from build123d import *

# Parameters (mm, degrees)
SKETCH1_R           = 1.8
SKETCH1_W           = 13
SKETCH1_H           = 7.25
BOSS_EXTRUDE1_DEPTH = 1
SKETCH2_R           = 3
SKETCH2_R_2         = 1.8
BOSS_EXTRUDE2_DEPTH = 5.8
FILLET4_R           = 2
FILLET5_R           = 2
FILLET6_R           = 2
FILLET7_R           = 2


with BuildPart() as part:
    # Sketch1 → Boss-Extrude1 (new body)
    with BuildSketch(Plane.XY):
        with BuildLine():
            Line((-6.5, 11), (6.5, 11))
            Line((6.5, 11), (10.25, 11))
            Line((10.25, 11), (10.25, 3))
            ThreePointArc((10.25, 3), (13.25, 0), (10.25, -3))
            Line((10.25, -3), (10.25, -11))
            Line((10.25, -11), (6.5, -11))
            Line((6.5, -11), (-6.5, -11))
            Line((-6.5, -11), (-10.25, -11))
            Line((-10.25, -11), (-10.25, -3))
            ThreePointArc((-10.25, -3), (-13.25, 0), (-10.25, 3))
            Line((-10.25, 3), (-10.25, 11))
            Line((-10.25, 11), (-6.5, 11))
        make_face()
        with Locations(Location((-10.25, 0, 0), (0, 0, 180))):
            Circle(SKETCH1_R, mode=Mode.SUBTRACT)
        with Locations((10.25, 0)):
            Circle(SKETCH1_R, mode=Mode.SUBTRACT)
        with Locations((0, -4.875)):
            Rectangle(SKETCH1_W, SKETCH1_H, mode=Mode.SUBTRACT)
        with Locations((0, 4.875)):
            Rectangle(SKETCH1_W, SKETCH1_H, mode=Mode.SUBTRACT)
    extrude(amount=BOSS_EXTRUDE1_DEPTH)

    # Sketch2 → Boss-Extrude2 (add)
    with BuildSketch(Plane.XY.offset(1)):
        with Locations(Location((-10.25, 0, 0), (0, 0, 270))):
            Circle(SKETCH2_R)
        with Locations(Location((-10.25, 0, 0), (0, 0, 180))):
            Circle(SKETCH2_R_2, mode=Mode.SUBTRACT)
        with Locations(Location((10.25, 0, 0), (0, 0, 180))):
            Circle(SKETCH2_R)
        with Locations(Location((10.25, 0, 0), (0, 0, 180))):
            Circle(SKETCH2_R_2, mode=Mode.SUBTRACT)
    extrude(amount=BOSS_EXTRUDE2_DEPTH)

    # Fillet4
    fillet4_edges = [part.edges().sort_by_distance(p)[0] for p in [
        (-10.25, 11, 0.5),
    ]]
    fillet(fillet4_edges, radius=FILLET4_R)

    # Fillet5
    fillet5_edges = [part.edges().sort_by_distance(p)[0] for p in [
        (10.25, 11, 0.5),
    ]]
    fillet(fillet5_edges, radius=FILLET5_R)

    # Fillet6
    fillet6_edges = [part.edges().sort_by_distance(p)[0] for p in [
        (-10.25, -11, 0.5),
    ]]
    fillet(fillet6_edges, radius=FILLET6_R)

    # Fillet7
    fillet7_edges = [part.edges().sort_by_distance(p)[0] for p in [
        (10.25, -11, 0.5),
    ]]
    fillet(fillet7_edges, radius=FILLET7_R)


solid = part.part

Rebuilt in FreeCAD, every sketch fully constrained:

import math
import FreeCAD as App
import Part
import Sketcher
from FreeCAD import Vector


def edges_at(feature, points):
    """Names of the edges that pass closest to the given points."""
    edges = feature.Shape.Edges
    near = lambda p: min(range(len(edges)), key=lambda i: edges[i].distToShape(Part.Vertex(*p))[0])
    return sorted({f"Edge{near(p) + 1}" for p in points})


def add_polygon(sketch, points):
    """Adds a closed chain of lines whose ends are joined by coincident constraints."""
    first, n = sketch.GeometryCount, len(points)
    for a, b in zip(points, points[1:] + points[:1]):
        sketch.addGeometry(Part.LineSegment(App.Vector(*a, 0), App.Vector(*b, 0)), False)
    for i in range(n):
        sketch.addConstraint(Sketcher.Constraint("Coincident", first + i, 2, first + (i + 1) % n, 1))

doc = App.newDocument("Part")
body = doc.addObject("PartDesign::Body", "Body")

# Sketch on XY plane
sketch1 = body.newObject("Sketcher::SketchObject", "Sketch")
sketch1.AttachmentSupport = (doc.getObject("XY_Plane"), [""])
sketch1.MapMode = "FlatFace"
sketch1.addGeometry(Part.LineSegment(Vector(10.2, 3, 0), Vector(10.2, 11, 0)), False)  # 0
sketch1.addGeometry(Part.LineSegment(Vector(10.2, 11, 0), Vector(-10.2, 11, 0)), False)  # 1
sketch1.addGeometry(Part.LineSegment(Vector(-10.2, 11, 0), Vector(-10.2, 3, 0)), False)  # 2
sketch1.addGeometry(Part.ArcOfCircle(Part.Circle(Vector(-10.2, 0, 0), Vector(0, 0, 1), 3), math.radians(90), math.radians(270)), False)  # 3
sketch1.addGeometry(Part.LineSegment(Vector(-10.2, -3, 0), Vector(-10.2, -11, 0)), False)  # 4
sketch1.addGeometry(Part.LineSegment(Vector(-10.2, -11, 0), Vector(10.2, -11, 0)), False)  # 5
sketch1.addGeometry(Part.LineSegment(Vector(10.2, -11, 0), Vector(10.2, -3, 0)), False)  # 6
sketch1.addGeometry(Part.ArcOfCircle(Part.Circle(Vector(10.2, 0, 0), Vector(0, 0, 1), 3), math.radians(-90), math.radians(90)), False)  # 7
add_polygon(sketch1, [(-6.5, -8.5), (-6.5, -1.2), (6.5, -1.2), (6.5, -8.5)])  # lines 8-11
sketch1.addGeometry(Part.Circle(Vector(10.2, 0, 0), Vector(0, 0, 1), 1.8), False)  # 12
sketch1.addGeometry(Part.Circle(Vector(-10.2, 0, 0), Vector(0, 0, 1), 1.8), False)  # 13
add_polygon(sketch1, [(-6.5, 1.2), (-6.5, 8.5), (6.5, 8.5), (6.5, 1.2)])  # lines 14-17
sketch1.addConstraint([
    Sketcher.Constraint("Coincident", 0, 2, 1, 1),
    Sketcher.Constraint("Coincident", 1, 2, 2, 1),
    Sketcher.Constraint("Coincident", 2, 2, 3, 1),
    Sketcher.Constraint("Coincident", 3, 2, 4, 1),
    Sketcher.Constraint("Coincident", 4, 2, 5, 1),
    Sketcher.Constraint("Coincident", 5, 2, 6, 1),
    Sketcher.Constraint("Coincident", 6, 2, 7, 1),
    Sketcher.Constraint("Coincident", 7, 2, 0, 1),
    Sketcher.Constraint("Vertical", 0),
    Sketcher.Constraint("Horizontal", 1),
    Sketcher.Constraint("Vertical", 2),
    Sketcher.Constraint("Vertical", 4),
    Sketcher.Constraint("Horizontal", 5),
    Sketcher.Constraint("Vertical", 6),
    Sketcher.Constraint("Vertical", 8),
    Sketcher.Constraint("Horizontal", 9),
    Sketcher.Constraint("Vertical", 10),
    Sketcher.Constraint("Horizontal", 11),
    Sketcher.Constraint("Vertical", 14),
    Sketcher.Constraint("Horizontal", 15),
    Sketcher.Constraint("Vertical", 16),
    Sketcher.Constraint("Horizontal", 17),
    Sketcher.Constraint("Coincident", 12, 3, 7, 3),
    Sketcher.Constraint("Coincident", 13, 3, 3, 3),
    Sketcher.Constraint("Equal", 3, 7),
    Sketcher.Constraint("Equal", 12, 13),
    Sketcher.Constraint("Symmetric", 3, 3, 7, 3, -1, 1),
    Sketcher.Constraint("Symmetric", 0, 2, 4, 2, -1, 1),
    Sketcher.Constraint("Symmetric", 10, 2, 14, 2, -1, 1),
    Sketcher.Constraint("Symmetric", 8, 2, 16, 2, -1, 1),
    Sketcher.Constraint("Symmetric", 3, 2, 6, 2, -2),
    Sketcher.Constraint("Vertical", 12, 3, 0, 2),
    Sketcher.Constraint("Vertical", 13, 3, 1, 2),
    Sketcher.Constraint("Vertical", 11, 2, 14, 2),
    Sketcher.Constraint("Radius", 3, 3.0),
    Sketcher.Constraint("Diameter", 12, 3.6),
    Sketcher.Constraint("DistanceX", 9, 1, 9, 2, 13.0),
    Sketcher.Constraint("DistanceY", 0, 1, 0, 2, 8.0),
    Sketcher.Constraint("DistanceX", 1, 2, 1, 1, 20.5),
    Sketcher.Constraint("DistanceY", 8, 1, 8, 2, 7.25),
    Sketcher.Constraint("DistanceY", 10, 2, -1, 1, 8.5),
])
pad1 = body.newObject("PartDesign::Pad", "Pad")
pad1.Profile = sketch1
pad1.Length = 1

# Sketch on XY plane
sketch2 = body.newObject("Sketcher::SketchObject", "Sketch001")
sketch2.AttachmentSupport = (doc.getObject("XY_Plane"), [""])
sketch2.MapMode = "FlatFace"
sketch2.AttachmentOffset = App.Placement(Vector(0, 0, 1), App.Rotation())
sketch2.addGeometry([
    Part.Circle(Vector(-10.2, 0, 0), Vector(0, 0, 1), 3),
    Part.Circle(Vector(-10.2, 0, 0), Vector(0, 0, 1), 1.8),
    Part.Circle(Vector(10.2, 0, 0), Vector(0, 0, 1), 3),
    Part.Circle(Vector(10.2, 0, 0), Vector(0, 0, 1), 1.8),
], False)
sketch2.addConstraint([
    Sketcher.Constraint("Coincident", 1, 3, 0, 3),
    Sketcher.Constraint("Coincident", 3, 3, 2, 3),
    Sketcher.Constraint("Equal", 0, 2),
    Sketcher.Constraint("Equal", 1, 3),
    Sketcher.Constraint("Symmetric", 0, 3, 2, 3, -1, 1),
    Sketcher.Constraint("PointOnObject", 0, 3, -1),
    Sketcher.Constraint("Diameter", 0, 6.0),
    Sketcher.Constraint("Diameter", 1, 3.6),
    Sketcher.Constraint("DistanceX", 0, 3, 2, 3, 20.5),
])
pad2 = body.newObject("PartDesign::Pad", "Pad001")
pad2.Profile = sketch2
pad2.Length = 5.8
doc.recompute()

fillet = body.newObject("PartDesign::Fillet", "Fillet")
fillet.Base = (pad2, edges_at(pad2, [(-10.25, 11, 0.5)]))
fillet.Radius = 2
doc.recompute()

fillet2 = body.newObject("PartDesign::Fillet", "Fillet001")
fillet2.Base = (fillet, edges_at(fillet, [(10.25, 11, 0.5)]))
fillet2.Radius = 2
doc.recompute()

fillet3 = body.newObject("PartDesign::Fillet", "Fillet002")
fillet3.Base = (fillet2, edges_at(fillet2, [(-10.25, -11, 0.5)]))
fillet3.Radius = 2
doc.recompute()

fillet4 = body.newObject("PartDesign::Fillet", "Fillet003")
fillet4.Base = (fillet3, edges_at(fillet3, [(10.25, -11, 0.5)]))
fillet4.Radius = 2

doc.recompute()
